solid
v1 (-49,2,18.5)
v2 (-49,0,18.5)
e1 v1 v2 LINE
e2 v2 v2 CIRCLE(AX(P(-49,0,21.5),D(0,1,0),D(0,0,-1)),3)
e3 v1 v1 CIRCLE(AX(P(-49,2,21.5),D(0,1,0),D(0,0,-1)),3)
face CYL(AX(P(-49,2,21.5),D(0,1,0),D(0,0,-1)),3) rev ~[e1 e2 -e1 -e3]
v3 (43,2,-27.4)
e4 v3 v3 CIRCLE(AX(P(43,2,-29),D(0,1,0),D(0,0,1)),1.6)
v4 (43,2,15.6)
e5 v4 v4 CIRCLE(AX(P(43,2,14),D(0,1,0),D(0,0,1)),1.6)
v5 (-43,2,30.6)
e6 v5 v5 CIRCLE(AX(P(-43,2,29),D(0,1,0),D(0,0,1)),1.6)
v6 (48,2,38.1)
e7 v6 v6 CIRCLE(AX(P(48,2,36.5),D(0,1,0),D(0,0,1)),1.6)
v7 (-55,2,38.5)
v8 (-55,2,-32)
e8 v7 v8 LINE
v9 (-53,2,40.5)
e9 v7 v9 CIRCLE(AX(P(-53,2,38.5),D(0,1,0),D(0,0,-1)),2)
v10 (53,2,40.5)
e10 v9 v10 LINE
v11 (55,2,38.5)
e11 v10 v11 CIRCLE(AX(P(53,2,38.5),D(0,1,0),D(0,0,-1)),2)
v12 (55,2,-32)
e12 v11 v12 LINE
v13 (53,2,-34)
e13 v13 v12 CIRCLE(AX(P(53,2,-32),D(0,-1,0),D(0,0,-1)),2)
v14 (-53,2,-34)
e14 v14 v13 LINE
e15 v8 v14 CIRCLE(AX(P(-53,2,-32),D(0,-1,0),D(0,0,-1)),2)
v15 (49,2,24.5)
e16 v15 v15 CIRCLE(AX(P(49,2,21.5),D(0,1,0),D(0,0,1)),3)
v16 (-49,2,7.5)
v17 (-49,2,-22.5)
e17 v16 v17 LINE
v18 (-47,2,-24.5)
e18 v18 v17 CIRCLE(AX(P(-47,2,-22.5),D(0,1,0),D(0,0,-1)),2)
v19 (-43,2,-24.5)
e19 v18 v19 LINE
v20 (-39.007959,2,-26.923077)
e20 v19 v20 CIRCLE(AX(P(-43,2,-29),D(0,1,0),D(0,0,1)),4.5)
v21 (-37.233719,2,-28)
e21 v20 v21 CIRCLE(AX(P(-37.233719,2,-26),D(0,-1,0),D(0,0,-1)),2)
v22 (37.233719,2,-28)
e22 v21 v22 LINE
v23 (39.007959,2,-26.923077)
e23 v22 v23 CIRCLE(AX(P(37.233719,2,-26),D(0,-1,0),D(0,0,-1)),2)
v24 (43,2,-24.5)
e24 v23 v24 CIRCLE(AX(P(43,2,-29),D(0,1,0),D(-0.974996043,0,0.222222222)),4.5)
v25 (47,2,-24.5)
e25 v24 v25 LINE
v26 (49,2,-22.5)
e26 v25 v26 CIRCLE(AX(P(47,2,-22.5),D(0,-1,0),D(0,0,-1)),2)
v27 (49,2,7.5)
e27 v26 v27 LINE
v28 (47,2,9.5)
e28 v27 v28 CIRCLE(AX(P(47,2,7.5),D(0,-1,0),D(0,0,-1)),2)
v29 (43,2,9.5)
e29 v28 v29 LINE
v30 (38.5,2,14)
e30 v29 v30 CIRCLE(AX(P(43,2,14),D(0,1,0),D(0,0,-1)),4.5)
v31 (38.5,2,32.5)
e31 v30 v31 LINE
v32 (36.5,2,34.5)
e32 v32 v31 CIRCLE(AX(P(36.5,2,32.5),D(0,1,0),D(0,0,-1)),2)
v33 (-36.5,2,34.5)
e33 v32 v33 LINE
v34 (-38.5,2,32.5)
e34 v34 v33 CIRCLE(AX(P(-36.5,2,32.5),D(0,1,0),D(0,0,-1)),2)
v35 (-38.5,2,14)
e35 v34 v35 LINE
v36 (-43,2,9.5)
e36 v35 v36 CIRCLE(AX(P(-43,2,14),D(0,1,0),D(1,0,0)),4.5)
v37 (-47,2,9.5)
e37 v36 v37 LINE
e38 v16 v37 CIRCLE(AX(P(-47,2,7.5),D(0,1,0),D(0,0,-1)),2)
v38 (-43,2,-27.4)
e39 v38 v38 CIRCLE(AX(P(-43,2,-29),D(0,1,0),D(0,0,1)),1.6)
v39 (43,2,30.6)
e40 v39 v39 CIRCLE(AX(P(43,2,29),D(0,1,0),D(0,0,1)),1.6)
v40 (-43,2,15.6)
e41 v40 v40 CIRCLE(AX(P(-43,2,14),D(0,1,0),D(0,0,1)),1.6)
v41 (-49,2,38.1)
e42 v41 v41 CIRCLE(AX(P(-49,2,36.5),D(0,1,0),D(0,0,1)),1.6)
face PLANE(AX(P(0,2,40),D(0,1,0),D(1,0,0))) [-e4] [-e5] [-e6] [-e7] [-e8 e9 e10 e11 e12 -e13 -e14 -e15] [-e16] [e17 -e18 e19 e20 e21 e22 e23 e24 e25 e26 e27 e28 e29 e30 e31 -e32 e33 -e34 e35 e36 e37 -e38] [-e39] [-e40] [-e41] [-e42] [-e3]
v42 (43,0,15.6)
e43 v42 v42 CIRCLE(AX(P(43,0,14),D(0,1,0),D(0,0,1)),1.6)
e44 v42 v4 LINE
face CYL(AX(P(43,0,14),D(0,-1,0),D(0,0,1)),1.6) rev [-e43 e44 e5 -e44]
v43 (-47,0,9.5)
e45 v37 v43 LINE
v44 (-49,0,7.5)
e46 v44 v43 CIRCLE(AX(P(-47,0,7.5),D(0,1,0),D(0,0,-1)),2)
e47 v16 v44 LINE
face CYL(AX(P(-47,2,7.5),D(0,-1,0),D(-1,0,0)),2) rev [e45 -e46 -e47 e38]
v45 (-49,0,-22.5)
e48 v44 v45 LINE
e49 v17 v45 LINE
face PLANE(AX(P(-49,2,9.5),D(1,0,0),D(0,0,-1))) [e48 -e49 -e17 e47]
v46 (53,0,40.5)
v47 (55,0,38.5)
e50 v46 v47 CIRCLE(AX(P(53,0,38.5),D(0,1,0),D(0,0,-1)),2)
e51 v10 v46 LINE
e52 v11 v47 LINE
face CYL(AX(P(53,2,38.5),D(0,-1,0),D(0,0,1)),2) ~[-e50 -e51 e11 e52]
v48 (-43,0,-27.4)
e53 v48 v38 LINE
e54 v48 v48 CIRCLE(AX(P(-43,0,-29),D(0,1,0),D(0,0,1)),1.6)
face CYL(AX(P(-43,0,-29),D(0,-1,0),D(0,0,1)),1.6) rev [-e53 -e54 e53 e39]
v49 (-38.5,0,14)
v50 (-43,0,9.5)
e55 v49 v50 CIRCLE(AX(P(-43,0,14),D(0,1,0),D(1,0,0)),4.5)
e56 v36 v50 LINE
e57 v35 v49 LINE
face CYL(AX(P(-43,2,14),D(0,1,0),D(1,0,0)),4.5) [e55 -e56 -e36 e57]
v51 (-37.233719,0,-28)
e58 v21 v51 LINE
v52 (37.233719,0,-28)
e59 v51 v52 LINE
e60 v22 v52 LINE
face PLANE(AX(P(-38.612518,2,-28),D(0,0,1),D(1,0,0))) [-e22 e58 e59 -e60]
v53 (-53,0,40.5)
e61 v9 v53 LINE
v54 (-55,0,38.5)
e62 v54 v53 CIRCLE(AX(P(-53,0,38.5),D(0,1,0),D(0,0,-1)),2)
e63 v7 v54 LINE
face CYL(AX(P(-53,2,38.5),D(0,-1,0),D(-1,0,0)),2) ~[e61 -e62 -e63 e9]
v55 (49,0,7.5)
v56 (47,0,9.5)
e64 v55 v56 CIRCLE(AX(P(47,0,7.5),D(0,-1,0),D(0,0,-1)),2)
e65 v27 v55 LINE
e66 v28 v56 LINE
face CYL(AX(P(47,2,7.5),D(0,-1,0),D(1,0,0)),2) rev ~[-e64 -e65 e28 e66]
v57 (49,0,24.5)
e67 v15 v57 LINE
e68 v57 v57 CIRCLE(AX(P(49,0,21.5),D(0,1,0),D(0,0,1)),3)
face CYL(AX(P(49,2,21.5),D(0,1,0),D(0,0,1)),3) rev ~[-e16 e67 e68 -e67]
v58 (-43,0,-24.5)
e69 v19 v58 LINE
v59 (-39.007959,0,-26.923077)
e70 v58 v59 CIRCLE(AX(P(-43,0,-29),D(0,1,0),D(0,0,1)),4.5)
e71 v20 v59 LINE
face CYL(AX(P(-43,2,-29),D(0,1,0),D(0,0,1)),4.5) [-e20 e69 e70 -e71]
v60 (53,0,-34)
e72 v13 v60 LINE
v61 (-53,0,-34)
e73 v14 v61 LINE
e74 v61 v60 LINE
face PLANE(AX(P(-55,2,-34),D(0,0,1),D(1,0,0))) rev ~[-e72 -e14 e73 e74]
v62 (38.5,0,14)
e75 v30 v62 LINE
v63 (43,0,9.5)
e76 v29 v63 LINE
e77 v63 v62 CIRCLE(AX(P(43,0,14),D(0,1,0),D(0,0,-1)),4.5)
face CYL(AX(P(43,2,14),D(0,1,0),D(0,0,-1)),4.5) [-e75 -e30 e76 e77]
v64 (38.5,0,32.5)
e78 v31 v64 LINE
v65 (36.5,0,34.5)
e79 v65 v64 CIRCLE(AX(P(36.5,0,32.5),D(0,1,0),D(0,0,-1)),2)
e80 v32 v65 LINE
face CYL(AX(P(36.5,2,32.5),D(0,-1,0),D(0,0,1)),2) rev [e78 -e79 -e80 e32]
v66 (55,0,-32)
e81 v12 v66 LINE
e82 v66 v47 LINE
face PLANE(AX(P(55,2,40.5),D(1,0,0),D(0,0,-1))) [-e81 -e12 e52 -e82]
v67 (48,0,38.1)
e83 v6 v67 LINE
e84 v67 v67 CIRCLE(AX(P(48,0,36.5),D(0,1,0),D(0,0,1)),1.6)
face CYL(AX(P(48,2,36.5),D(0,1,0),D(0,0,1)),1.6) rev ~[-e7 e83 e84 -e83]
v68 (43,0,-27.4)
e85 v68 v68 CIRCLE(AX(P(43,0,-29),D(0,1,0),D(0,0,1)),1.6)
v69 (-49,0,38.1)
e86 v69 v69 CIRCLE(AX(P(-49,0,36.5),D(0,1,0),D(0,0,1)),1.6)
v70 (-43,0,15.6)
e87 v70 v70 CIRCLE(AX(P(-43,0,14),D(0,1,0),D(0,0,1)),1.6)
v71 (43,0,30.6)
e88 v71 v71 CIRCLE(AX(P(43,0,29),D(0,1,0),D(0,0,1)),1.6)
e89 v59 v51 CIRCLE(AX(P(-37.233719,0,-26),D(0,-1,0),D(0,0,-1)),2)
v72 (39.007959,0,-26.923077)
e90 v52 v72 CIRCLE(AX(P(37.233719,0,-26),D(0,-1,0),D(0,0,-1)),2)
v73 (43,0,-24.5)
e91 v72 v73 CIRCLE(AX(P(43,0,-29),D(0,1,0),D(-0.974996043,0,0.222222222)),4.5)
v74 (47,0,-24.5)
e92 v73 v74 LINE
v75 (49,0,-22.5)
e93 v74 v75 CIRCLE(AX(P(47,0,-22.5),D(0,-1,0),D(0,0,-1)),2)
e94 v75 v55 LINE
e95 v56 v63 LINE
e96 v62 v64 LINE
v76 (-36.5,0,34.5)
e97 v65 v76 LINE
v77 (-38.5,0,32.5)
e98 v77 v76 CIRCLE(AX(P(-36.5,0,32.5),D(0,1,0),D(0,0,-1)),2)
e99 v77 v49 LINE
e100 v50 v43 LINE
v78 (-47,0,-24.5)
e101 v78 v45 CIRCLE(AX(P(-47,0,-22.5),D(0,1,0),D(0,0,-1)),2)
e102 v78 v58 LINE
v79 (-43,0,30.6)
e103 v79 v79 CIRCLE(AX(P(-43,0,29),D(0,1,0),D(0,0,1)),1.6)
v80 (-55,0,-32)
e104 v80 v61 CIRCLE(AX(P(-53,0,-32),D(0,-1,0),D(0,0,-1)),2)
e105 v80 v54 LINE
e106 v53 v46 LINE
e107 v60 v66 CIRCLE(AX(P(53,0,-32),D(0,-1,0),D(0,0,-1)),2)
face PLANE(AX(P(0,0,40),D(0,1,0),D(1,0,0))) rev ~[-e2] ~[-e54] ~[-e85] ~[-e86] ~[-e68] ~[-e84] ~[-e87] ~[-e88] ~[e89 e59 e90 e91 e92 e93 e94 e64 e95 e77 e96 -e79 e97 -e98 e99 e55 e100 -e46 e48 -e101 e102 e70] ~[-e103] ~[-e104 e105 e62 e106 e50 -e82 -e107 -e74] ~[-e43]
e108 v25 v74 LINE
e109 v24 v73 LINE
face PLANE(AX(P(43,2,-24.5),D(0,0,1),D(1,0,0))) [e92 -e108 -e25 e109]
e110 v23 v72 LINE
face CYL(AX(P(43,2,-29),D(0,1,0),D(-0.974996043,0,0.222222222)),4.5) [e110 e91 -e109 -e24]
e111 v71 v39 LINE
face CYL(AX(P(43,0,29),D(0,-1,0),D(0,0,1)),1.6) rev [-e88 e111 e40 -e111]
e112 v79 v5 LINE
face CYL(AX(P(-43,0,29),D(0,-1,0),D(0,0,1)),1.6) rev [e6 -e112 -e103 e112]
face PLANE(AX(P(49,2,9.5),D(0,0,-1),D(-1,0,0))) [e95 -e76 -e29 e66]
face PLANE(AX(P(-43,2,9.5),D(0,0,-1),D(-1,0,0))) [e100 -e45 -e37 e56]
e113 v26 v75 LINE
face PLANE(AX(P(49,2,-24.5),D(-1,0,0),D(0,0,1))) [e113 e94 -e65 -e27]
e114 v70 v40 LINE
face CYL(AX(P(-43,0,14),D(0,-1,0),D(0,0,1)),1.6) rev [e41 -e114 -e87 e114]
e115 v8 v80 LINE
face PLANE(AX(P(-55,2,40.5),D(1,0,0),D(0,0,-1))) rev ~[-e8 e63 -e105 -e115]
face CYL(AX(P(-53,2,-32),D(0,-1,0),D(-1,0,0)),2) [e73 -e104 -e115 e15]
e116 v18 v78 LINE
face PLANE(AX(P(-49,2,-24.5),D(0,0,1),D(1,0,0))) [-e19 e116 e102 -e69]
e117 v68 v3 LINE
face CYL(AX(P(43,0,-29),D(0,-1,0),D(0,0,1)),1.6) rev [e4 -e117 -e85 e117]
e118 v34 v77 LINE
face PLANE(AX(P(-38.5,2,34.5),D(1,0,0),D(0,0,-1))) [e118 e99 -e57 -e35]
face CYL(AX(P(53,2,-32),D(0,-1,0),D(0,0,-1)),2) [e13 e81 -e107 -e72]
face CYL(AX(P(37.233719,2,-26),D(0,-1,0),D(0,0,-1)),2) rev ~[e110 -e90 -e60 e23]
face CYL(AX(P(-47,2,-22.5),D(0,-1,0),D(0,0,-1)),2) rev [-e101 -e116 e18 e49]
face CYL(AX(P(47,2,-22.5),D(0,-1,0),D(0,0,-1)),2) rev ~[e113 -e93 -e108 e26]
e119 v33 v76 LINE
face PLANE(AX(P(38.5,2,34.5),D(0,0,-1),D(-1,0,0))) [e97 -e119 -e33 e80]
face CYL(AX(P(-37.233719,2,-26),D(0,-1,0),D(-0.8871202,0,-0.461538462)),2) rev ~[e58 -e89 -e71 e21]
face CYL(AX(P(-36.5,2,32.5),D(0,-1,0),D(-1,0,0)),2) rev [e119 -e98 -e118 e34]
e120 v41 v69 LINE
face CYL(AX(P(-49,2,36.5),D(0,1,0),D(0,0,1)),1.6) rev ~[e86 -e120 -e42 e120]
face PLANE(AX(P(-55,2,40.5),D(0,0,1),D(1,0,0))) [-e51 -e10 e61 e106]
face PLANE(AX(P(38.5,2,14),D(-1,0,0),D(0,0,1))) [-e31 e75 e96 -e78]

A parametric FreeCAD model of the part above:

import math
import FreeCAD as App
import Part
import Sketcher
from FreeCAD import Vector
Q = App.Units.Quantity


def edges_at(feature, points):
    """Names of the edges that pass closest to the given points."""
    edges = feature.Shape.Edges
    near = lambda p: min(range(len(edges)), key=lambda i: edges[i].distToShape(Part.Vertex(*p))[0])
    return sorted({f"Edge{near(p) + 1}" for p in points})


def add_polygon(sketch, points):
    """Adds a closed chain of lines whose ends are joined by coincident constraints."""
    first, n = sketch.GeometryCount, len(points)
    for a, b in zip(points, points[1:] + points[:1]):
        sketch.addGeometry(Part.LineSegment(App.Vector(*a, 0), App.Vector(*b, 0)), False)
    for i in range(n):
        sketch.addConstraint(Sketcher.Constraint("Coincident", first + i, 2, first + (i + 1) % n, 1))

doc = App.newDocument("Part")
body = doc.addObject("PartDesign::Body", "Body")

# Sketch on XZ plane
sketch1 = doc.addObject("Sketcher::SketchObject", "Sketch")
body.addObject(sketch1)
sketch1.AttachmentSupport = (doc.XZ_Plane, [""])
sketch1.MapMode = "FlatFace"
add_polygon(sketch1, [(-55, -39.5), (-55, 39.5), (55, 39.5), (55, -39.5)])  # lines 0-3
sketch1.addGeometry(Part.Circle(Vector(-43, 29, 0), Vector(0, 0, 1), 1.6), False)  # 4
sketch1.addGeometry(Part.Circle(Vector(-43, 14, 0), Vector(0, 0, 1), 1.6), False)  # 5
sketch1.addGeometry(Part.Circle(Vector(43, 29, 0), Vector(0, 0, 1), 1.6), False)  # 6
sketch1.addGeometry(Part.Circle(Vector(43, 14, 0), Vector(0, 0, 1), 1.6), False)  # 7
sketch1.addGeometry(Part.Circle(Vector(-43, -29, 0), Vector(0, 0, 1), 1.6), False)  # 8
sketch1.addGeometry(Part.Circle(Vector(43, -29, 0), Vector(0, 0, 1), 1.6), False)  # 9
sketch1.addConstraint(Sketcher.Constraint("Vertical", 0))
sketch1.addConstraint(Sketcher.Constraint("Horizontal", 1))
sketch1.addConstraint(Sketcher.Constraint("Vertical", 2))
sketch1.addConstraint(Sketcher.Constraint("Horizontal", 3))
sketch1.addConstraint(Sketcher.Constraint("Equal", 4, 5))
sketch1.addConstraint(Sketcher.Constraint("Equal", 5, 6))
sketch1.addConstraint(Sketcher.Constraint("Equal", 6, 7))
sketch1.addConstraint(Sketcher.Constraint("Equal", 7, 8))
sketch1.addConstraint(Sketcher.Constraint("Equal", 8, 9))
sketch1.addConstraint(Sketcher.Constraint("Symmetric", 6, 3, 8, 3, -1, 1))
sketch1.addConstraint(Sketcher.Constraint("Symmetric", 4, 3, 9, 3, -1, 1))
sketch1.addConstraint(Sketcher.Constraint("Symmetric", 0, 2, 2, 2, -1, 1))
sketch1.addConstraint(Sketcher.Constraint("Symmetric", 4, 3, 6, 3, -2))
sketch1.addConstraint(Sketcher.Constraint("Symmetric", 5, 3, 7, 3, -2))
sketch1.addConstraint(Sketcher.Constraint("Vertical", 4, 3, 5, 3))
sketch1.addConstraint(Sketcher.Constraint("Diameter", 4, Q("3.2 mm")))
sketch1.addConstraint(Sketcher.Constraint("DistanceX", 1, 1, 1, 2, Q("110 mm")))
sketch1.addConstraint(Sketcher.Constraint("DistanceY", 0, 1, 0, 2, Q("79 mm")))
sketch1.addConstraint(Sketcher.Constraint("DistanceX", 4, 3, -1, 1, Q("43 mm")))
sketch1.addConstraint(Sketcher.Constraint("DistanceY", -1, 1, 4, 3, Q("29 mm")))
sketch1.addConstraint(Sketcher.Constraint("DistanceY", -1, 1, 5, 3, Q("14 mm")))
pad1 = doc.addObject("PartDesign::Pad", "Pad")
body.addObject(pad1)
pad1.Profile = sketch1
pad1.Length = 2
pad1.Reversed = True

# Sketch on XZ plane
sketch2 = doc.addObject("Sketcher::SketchObject", "Sketch001")
body.addObject(sketch2)
sketch2.AttachmentSupport = (doc.XZ_Plane, [""])
sketch2.MapMode = "FlatFace"
sketch2.AttachmentOffset = App.Placement(Vector(0, 0, -2), App.Rotation())
add_polygon(sketch2, [(-55, 39.5), (-55, 40.5), (55, 40.5), (55, 39.5)])  # lines 0-3
sketch2.addConstraint(Sketcher.Constraint("Vertical", 0))
sketch2.addConstraint(Sketcher.Constraint("Horizontal", 1))
sketch2.addConstraint(Sketcher.Constraint("Vertical", 2))
sketch2.addConstraint(Sketcher.Constraint("Horizontal", 3))
sketch2.addConstraint(Sketcher.Constraint("DistanceX", 1, 1, 1, 2, Q("110 mm")))
sketch2.addConstraint(Sketcher.Constraint("DistanceY", 0, 1, 0, 2, Q("1 mm")))
sketch2.addConstraint(Sketcher.Constraint("DistanceX", 0, 2, -1, 1, Q("55 mm")))
sketch2.addConstraint(Sketcher.Constraint("DistanceY", -1, 1, 0, 2, Q("40.5 mm")))
pad2 = doc.addObject("PartDesign::Pad", "Pad001")
body.addObject(pad2)
pad2.Profile = sketch2
pad2.Length = 2

# Sketch on XZ plane
sketch3 = doc.addObject("Sketcher::SketchObject", "Sketch002")
body.addObject(sketch3)
sketch3.AttachmentSupport = (doc.XZ_Plane, [""])
sketch3.MapMode = "FlatFace"
sketch3.AttachmentOffset = App.Placement(Vector(0, 0, -2), App.Rotation())
sketch3.addGeometry(Part.Circle(Vector(48, 36.5, 0), Vector(0, 0, 1), 1.6), False)
sketch3.addGeometry(Part.Circle(Vector(-49, 36.5, 0), Vector(0, 0, 1), 1.6), False)
sketch3.addConstraint(Sketcher.Constraint("Equal", 0, 1))
sketch3.addConstraint(Sketcher.Constraint("Horizontal", 0, 3, 1, 3))
sketch3.addConstraint(Sketcher.Constraint("Diameter", 0, Q("3.2 mm")))
sketch3.addConstraint(Sketcher.Constraint("DistanceX", -1, 1, 0, 3, Q("48 mm")))
sketch3.addConstraint(Sketcher.Constraint("DistanceX", 1, 3, -1, 1, Q("49 mm")))
sketch3.addConstraint(Sketcher.Constraint("DistanceY", -1, 1, 0, 3, Q("36.5 mm")))
pocket1 = doc.addObject("PartDesign::Pocket", "Pocket")
body.addObject(pocket1)
pocket1.Profile = sketch3
pocket1.Length = 2
pocket1.Reversed = True

# Sketch on XZ plane
sketch4 = doc.addObject("Sketcher::SketchObject", "Sketch003")
body.addObject(sketch4)
sketch4.AttachmentSupport = (doc.XZ_Plane, [""])
sketch4.MapMode = "FlatFace"
sketch4.AttachmentOffset = App.Placement(Vector(0, 0, -2), App.Rotation())
add_polygon(sketch4, [(-55, -39.5), (-55, -34), (55, -34), (55, -39.5)])  # lines 0-3
sketch4.addGeometry(Part.LineSegment(Vector(38.6, -28, 0), Vector(-38.6, -28, 0)), False)  # 4
sketch4.addGeometry(Part.ArcOfCircle(Part.Circle(Vector(-43, -29, 0), Vector(0, 0, 1), 4.5), math.radians(13), math.radians(90)), False)  # 5
sketch4.addGeometry(Part.LineSegment(Vector(-43, -24.5, 0), Vector(-49, -24.5, 0)), False)  # 6
sketch4.addGeometry(Part.LineSegment(Vector(-49, -24.5, 0), Vector(-49, 9.5, 0)), False)  # 7
sketch4.addGeometry(Part.LineSegment(Vector(-49, 9.5, 0), Vector(-43, 9.5, 0)), False)  # 8
sketch4.addGeometry(Part.ArcOfCircle(Part.Circle(Vector(-43, 14, 0), Vector(0, 0, 1), 4.5), math.radians(-90), math.radians(0)), False)  # 9
sketch4.addGeometry(Part.LineSegment(Vector(-38.5, 14, 0), Vector(-38.5, 34.5, 0)), False)  # 10
sketch4.addGeometry(Part.LineSegment(Vector(-38.5, 34.5, 0), Vector(38.5, 34.5, 0)), False)  # 11
sketch4.addGeometry(Part.LineSegment(Vector(38.5, 34.5, 0), Vector(38.5, 14, 0)), False)  # 12
sketch4.addGeometry(Part.ArcOfCircle(Part.Circle(Vector(43, 14, 0), Vector(0, 0, 1), 4.5), math.radians(-180), math.radians(-90)), False)  # 13
sketch4.addGeometry(Part.LineSegment(Vector(43, 9.5, 0), Vector(49, 9.5, 0)), False)  # 14
sketch4.addGeometry(Part.LineSegment(Vector(49, 9.5, 0), Vector(49, -24.5, 0)), False)  # 15
sketch4.addGeometry(Part.LineSegment(Vector(49, -24.5, 0), Vector(43, -24.5, 0)), False)  # 16
sketch4.addGeometry(Part.ArcOfCircle(Part.Circle(Vector(43, -29, 0), Vector(0, 0, 1), 4.5), math.radians(90), math.radians(167)), False)  # 17
sketch4.addConstraint(Sketcher.Constraint("Coincident", 4, 2, 5, 1))
sketch4.addConstraint(Sketcher.Constraint("Tangent", 5, 2, 6, 1))
sketch4.addConstraint(Sketcher.Constraint("Coincident", 6, 2, 7, 1))
sketch4.addConstraint(Sketcher.Constraint("Coincident", 7, 2, 8, 1))
sketch4.addConstraint(Sketcher.Constraint("Tangent", 8, 2, 9, 1))
sketch4.addConstraint(Sketcher.Constraint("Tangent", 9, 2, 10, 1))
sketch4.addConstraint(Sketcher.Constraint("Coincident", 10, 2, 11, 1))
sketch4.addConstraint(Sketcher.Constraint("Coincident", 11, 2, 12, 1))
sketch4.addConstraint(Sketcher.Constraint("Tangent", 12, 2, 13, 1))
sketch4.addConstraint(Sketcher.Constraint("Tangent", 13, 2, 14, 1))
sketch4.addConstraint(Sketcher.Constraint("Coincident", 14, 2, 15, 1))
sketch4.addConstraint(Sketcher.Constraint("Coincident", 15, 2, 16, 1))
sketch4.addConstraint(Sketcher.Constraint("Tangent", 16, 2, 17, 1))
sketch4.addConstraint(Sketcher.Constraint("Coincident", 17, 2, 4, 1))
sketch4.addConstraint(Sketcher.Constraint("Vertical", 0))
sketch4.addConstraint(Sketcher.Constraint("Horizontal", 1))
sketch4.addConstraint(Sketcher.Constraint("Vertical", 2))
sketch4.addConstraint(Sketcher.Constraint("Horizontal", 3))
sketch4.addConstraint(Sketcher.Constraint("Horizontal", 4))
sketch4.addConstraint(Sketcher.Constraint("Horizontal", 6))
sketch4.addConstraint(Sketcher.Constraint("Vertical", 7))
sketch4.addConstraint(Sketcher.Constraint("Horizontal", 8))
sketch4.addConstraint(Sketcher.Constraint("Vertical", 10))
sketch4.addConstraint(Sketcher.Constraint("Horizontal", 11))
sketch4.addConstraint(Sketcher.Constraint("Vertical", 12))
sketch4.addConstraint(Sketcher.Constraint("Horizontal", 14))
sketch4.addConstraint(Sketcher.Constraint("Vertical", 15))
sketch4.addConstraint(Sketcher.Constraint("Horizontal", 16))
sketch4.addConstraint(Sketcher.Constraint("Equal", 5, 9))
sketch4.addConstraint(Sketcher.Constraint("Equal", 9, 13))
sketch4.addConstraint(Sketcher.Constraint("Equal", 13, 17))
sketch4.addConstraint(Sketcher.Constraint("Symmetric", 9, 3, 13, 3, -2))
sketch4.addConstraint(Sketcher.Constraint("Symmetric", 5, 3, 17, 3, -2))
sketch4.addConstraint(Sketcher.Constraint("Vertical", 5, 3, 9, 3))
sketch4.addConstraint(Sketcher.Constraint("Equal", 8, 14))
sketch4.addConstraint(Sketcher.Constraint("Radius", 5, Q("4.5 mm")))
sketch4.addConstraint(Sketcher.Constraint("DistanceX", 1, 1, 1, 2, Q("110 mm")))
sketch4.addConstraint(Sketcher.Constraint("DistanceX", 6, 2, 6, 1, Q("6 mm")))
sketch4.addConstraint(Sketcher.Constraint("DistanceX", 11, 1, 11, 2, Q("77 mm")))
sketch4.addConstraint(Sketcher.Constraint("DistanceY", 7, 1, 7, 2, Q("34 mm")))
sketch4.addConstraint(Sketcher.Constraint("DistanceY", 0, 1, 0, 2, Q("5.5 mm")))
sketch4.addConstraint(Sketcher.Constraint("DistanceY", 10, 1, 10, 2, Q("20.5 mm")))
sketch4.addConstraint(Sketcher.Constraint("DistanceY", 5, 3, -1, 1, Q("29 mm")))
sketch4.addConstraint(Sketcher.Constraint("DistanceX", 0, 2, -1, 1, Q("55 mm")))
sketch4.addConstraint(Sketcher.Constraint("DistanceY", 0, 2, -1, 1, Q("34 mm")))
sketch4.addConstraint(Sketcher.Constraint("DistanceY", 4, 2, -1, 1, Q("28 mm")))
pocket2 = doc.addObject("PartDesign::Pocket", "Pocket001")
body.addObject(pocket2)
pocket2.Profile = sketch4
pocket2.Length = 2
pocket2.Reversed = True

# Sketch on XZ plane
sketch5 = doc.addObject("Sketcher::SketchObject", "Sketch004")
body.addObject(sketch5)
sketch5.AttachmentSupport = (doc.XZ_Plane, [""])
sketch5.MapMode = "FlatFace"
sketch5.AttachmentOffset = App.Placement(Vector(0, 0, -2), App.Rotation())
sketch5.addGeometry(Part.Circle(Vector(49, 21.5, 0), Vector(0, 0, 1), 3), False)
sketch5.addGeometry(Part.Circle(Vector(-49, 21.5, 0), Vector(0, 0, 1), 3), False)
sketch5.addConstraint(Sketcher.Constraint("Equal", 0, 1))
sketch5.addConstraint(Sketcher.Constraint("Symmetric", 0, 3, 1, 3, -2))
sketch5.addConstraint(Sketcher.Constraint("Diameter", 0, Q("6 mm")))
sketch5.addConstraint(Sketcher.Constraint("DistanceX", -1, 1, 0, 3, Q("49 mm")))
sketch5.addConstraint(Sketcher.Constraint("DistanceY", -1, 1, 0, 3, Q("21.5 mm")))
pocket3 = doc.addObject("PartDesign::Pocket", "Pocket002")
body.addObject(pocket3)
pocket3.Profile = sketch5
pocket3.Length = 2
pocket3.Reversed = True
doc.recompute()

fillet = doc.addObject("PartDesign::Fillet", "Fillet")
body.addObject(fillet)
fillet.Base = (pocket3, edges_at(pocket3, [
    (-55, 1, 40.5),
    (55, 1, 40.5),
    (38.5, 1, 34.5),
    (-38.5, 1, 34.5),
    (-49, 1, 9.5),
    (-49, 1, -24.5),
    (-38.613, 1, -28),
    (38.613, 1, -28),
    (49, 1, -24.5),
    (49, 1, 9.5),
    (-55, 1, -34),
    (55, 1, -34),
]))
fillet.Radius = 2

doc.recompute()
